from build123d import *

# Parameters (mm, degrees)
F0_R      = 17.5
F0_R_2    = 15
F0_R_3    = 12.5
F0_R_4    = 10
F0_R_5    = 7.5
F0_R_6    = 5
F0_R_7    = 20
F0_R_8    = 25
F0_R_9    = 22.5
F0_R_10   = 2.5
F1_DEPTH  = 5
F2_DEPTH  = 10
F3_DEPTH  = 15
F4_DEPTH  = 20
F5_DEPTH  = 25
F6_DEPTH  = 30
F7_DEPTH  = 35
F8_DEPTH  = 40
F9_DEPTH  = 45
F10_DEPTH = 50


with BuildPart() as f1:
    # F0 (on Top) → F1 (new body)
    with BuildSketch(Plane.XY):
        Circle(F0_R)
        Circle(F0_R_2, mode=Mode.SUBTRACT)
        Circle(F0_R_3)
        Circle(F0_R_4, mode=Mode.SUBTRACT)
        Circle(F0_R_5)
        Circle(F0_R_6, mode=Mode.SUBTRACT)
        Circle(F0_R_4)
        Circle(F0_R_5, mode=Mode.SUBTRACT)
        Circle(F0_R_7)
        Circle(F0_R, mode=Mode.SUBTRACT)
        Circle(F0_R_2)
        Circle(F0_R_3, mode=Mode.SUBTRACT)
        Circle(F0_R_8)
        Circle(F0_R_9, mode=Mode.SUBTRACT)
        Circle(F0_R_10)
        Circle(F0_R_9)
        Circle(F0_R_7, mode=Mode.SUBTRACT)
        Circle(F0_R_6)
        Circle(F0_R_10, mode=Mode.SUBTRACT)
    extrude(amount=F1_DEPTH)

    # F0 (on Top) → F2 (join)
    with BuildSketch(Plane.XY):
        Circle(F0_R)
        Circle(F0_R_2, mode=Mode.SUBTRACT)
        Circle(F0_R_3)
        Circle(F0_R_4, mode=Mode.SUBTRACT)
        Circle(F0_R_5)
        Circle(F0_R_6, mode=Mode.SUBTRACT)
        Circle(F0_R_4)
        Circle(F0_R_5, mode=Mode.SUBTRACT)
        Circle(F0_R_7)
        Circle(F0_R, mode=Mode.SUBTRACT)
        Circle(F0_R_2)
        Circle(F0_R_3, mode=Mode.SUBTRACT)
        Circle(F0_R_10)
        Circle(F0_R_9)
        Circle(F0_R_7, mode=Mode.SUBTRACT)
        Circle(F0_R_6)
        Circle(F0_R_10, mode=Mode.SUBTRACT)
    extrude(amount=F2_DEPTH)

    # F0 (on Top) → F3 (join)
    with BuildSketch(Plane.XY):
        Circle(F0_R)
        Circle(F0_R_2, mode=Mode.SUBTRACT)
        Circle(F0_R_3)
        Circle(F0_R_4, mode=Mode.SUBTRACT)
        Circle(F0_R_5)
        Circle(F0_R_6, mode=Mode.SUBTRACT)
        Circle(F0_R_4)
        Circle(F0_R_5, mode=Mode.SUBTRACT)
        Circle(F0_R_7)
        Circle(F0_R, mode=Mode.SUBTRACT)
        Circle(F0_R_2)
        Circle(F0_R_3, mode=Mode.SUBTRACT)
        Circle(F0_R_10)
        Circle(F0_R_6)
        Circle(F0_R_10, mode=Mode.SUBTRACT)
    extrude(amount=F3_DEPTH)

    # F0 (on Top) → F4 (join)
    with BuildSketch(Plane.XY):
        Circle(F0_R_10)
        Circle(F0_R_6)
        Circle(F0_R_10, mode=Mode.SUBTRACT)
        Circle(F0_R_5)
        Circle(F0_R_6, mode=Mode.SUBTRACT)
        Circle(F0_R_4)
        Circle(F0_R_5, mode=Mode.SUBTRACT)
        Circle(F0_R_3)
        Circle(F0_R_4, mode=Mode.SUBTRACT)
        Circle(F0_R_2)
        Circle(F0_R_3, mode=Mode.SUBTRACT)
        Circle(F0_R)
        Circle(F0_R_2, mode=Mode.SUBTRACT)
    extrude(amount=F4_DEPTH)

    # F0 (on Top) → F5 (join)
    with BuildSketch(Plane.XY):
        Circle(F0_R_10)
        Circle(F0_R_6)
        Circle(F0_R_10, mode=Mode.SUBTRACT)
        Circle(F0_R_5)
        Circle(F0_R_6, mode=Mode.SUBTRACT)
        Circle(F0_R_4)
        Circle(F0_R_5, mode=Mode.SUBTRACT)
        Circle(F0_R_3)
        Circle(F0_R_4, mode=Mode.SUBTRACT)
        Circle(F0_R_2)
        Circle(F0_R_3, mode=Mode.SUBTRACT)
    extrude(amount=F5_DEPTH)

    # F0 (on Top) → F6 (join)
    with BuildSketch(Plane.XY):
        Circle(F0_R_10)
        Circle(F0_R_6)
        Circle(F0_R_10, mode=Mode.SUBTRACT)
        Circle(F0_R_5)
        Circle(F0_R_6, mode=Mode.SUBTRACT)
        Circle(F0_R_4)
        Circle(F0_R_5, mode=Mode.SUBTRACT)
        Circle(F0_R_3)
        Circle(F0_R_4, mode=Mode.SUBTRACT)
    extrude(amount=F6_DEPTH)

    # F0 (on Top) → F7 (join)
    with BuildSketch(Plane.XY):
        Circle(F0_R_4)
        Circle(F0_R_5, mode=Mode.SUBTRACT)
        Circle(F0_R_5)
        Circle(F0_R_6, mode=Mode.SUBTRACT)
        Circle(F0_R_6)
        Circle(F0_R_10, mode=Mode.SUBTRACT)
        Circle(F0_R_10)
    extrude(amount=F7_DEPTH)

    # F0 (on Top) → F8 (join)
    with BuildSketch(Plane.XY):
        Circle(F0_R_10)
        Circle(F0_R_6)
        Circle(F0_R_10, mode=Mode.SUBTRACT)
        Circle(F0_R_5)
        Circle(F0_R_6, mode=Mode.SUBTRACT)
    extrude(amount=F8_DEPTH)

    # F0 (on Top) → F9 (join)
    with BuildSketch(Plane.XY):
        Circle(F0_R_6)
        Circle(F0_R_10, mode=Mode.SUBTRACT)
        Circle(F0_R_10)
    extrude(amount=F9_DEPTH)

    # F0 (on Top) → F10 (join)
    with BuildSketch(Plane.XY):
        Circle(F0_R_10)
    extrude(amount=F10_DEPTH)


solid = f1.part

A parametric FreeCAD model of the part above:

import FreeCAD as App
import Part
import Sketcher
from FreeCAD import Vector

doc = App.newDocument("Part")
body = doc.addObject("PartDesign::Body", "Body")
body.AllowCompound = True

sketch1 = doc.addObject("Sketcher::SketchObject", "Sketch")
body.addObject(sketch1)
sketch1.AttachmentSupport = (doc.XY_Plane, [""])
sketch1.MapMode = "FlatFace"
sketch1.addGeometry([
    Part.Circle(Vector(0, 0, 0), Vector(0, 0, 1), 25),
    Part.Circle(Vector(0, 0, 0), Vector(0, 0, 1), 20),
    Part.Circle(Vector(0, 0, 0), Vector(0, 0, 1), 5),
    Part.Circle(Vector(0, 0, 0), Vector(0, 0, 1), 2.5),
], False)
sketch1.addConstraint([
    Sketcher.Constraint("Coincident", 0, 3, -1, 1),
    Sketcher.Constraint("Coincident", 1, 3, -1, 1),
    Sketcher.Constraint("Coincident", 2, 3, -1, 1),
    Sketcher.Constraint("Coincident", 3, 3, -1, 1),
    Sketcher.Constraint("Diameter", 0, 50.0),
    Sketcher.Constraint("Diameter", 1, 40.0),
    Sketcher.Constraint("Diameter", 2, 10.0),
    Sketcher.Constraint("Diameter", 3, 5.0),
])
pad1 = doc.addObject("PartDesign::Pad", "Pad")
body.addObject(pad1)
pad1.Profile = sketch1
pad1.Length = 5

sketch2 = doc.addObject("Sketcher::SketchObject", "Sketch001")
body.addObject(sketch2)
sketch2.AttachmentSupport = (doc.XY_Plane, [""])
sketch2.MapMode = "FlatFace"
sketch2.addGeometry([
    Part.Circle(Vector(0, 0, 0), Vector(0, 0, 1), 22.5),
    Part.Circle(Vector(0, 0, 0), Vector(0, 0, 1), 20),
    Part.Circle(Vector(0, 0, 0), Vector(0, 0, 1), 5),
    Part.Circle(Vector(0, 0, 0), Vector(0, 0, 1), 2.5),
], False)
sketch2.addConstraint([
    Sketcher.Constraint("Coincident", 0, 3, -1, 1),
    Sketcher.Constraint("Coincident", 1, 3, -1, 1),
    Sketcher.Constraint("Coincident", 2, 3, -1, 1),
    Sketcher.Constraint("Coincident", 3, 3, -1, 1),
    Sketcher.Constraint("Diameter", 0, 45.0),
    Sketcher.Constraint("Diameter", 1, 40.0),
    Sketcher.Constraint("Diameter", 2, 10.0),
    Sketcher.Constraint("Diameter", 3, 5.0),
])
pad2 = doc.addObject("PartDesign::Pad", "Pad001")
body.addObject(pad2)
pad2.Profile = sketch2
pad2.Length = 10

sketch3 = doc.addObject("Sketcher::SketchObject", "Sketch002")
body.addObject(sketch3)
sketch3.AttachmentSupport = (doc.XY_Plane, [""])
sketch3.MapMode = "FlatFace"
sketch3.addGeometry([
    Part.Circle(Vector(0, 0, 0), Vector(0, 0, 1), 20),
    Part.Circle(Vector(0, 0, 0), Vector(0, 0, 1), 17.5),
    Part.Circle(Vector(0, 0, 0), Vector(0, 0, 1), 15),
    Part.Circle(Vector(0, 0, 0), Vector(0, 0, 1), 12.5),
    Part.Circle(Vector(0, 0, 0), Vector(0, 0, 1), 5),
    Part.Circle(Vector(0, 0, 0), Vector(0, 0, 1), 2.5),
], False)
sketch3.addConstraint([
    Sketcher.Constraint("Coincident", 0, 3, -1, 1),
    Sketcher.Constraint("Coincident", 1, 3, -1, 1),
    Sketcher.Constraint("Coincident", 2, 3, -1, 1),
    Sketcher.Constraint("Coincident", 3, 3, -1, 1),
    Sketcher.Constraint("Coincident", 4, 3, -1, 1),
    Sketcher.Constraint("Coincident", 5, 3, -1, 1),
    Sketcher.Constraint("Diameter", 0, 40.0),
    Sketcher.Constraint("Diameter", 1, 35.0),
    Sketcher.Constraint("Diameter", 2, 30.0),
    Sketcher.Constraint("Diameter", 3, 25.0),
    Sketcher.Constraint("Diameter", 4, 10.0),
    Sketcher.Constraint("Diameter", 5, 5.0),
])
pad3 = doc.addObject("PartDesign::Pad", "Pad002")
body.addObject(pad3)
pad3.Profile = sketch3
pad3.Length = 15

sketch4 = doc.addObject("Sketcher::SketchObject", "Sketch003")
body.addObject(sketch4)
sketch4.AttachmentSupport = (doc.XY_Plane, [""])
sketch4.MapMode = "FlatFace"
sketch4.addGeometry([
    Part.Circle(Vector(0, 0, 0), Vector(0, 0, 1), 18),
    Part.Circle(Vector(0, 0, 0), Vector(0, 0, 1), 15),
], False)
sketch4.addConstraint([
    Sketcher.Constraint("Coincident", 0, 3, -1, 1),
    Sketcher.Constraint("Coincident", 1, 3, -1, 1),
    Sketcher.Constraint("Diameter", 0, 35.0),
    Sketcher.Constraint("Diameter", 1, 30.0),
])
pad4 = doc.addObject("PartDesign::Pad", "Pad003")
body.addObject(pad4)
pad4.Profile = sketch4
pad4.Length = 20

sketch5 = doc.addObject("Sketcher::SketchObject", "Sketch004")
body.addObject(sketch5)
sketch5.AttachmentSupport = (doc.XY_Plane, [""])
sketch5.MapMode = "FlatFace"
sketch5.addGeometry([
    Part.Circle(Vector(0, 0, 0), Vector(0, 0, 1), 15),
    Part.Circle(Vector(0, 0, 0), Vector(0, 0, 1), 12),
], False)
sketch5.addConstraint([
    Sketcher.Constraint("Coincident", 0, 3, -1, 1),
    Sketcher.Constraint("Coincident", 1, 3, -1, 1),
    Sketcher.Constraint("Diameter", 0, 30.0),
    Sketcher.Constraint("Diameter", 1, 25.0),
])
pad5 = doc.addObject("PartDesign::Pad", "Pad004")
body.addObject(pad5)
pad5.Profile = sketch5
pad5.Length = 25

sketch6 = doc.addObject("Sketcher::SketchObject", "Sketch005")
body.addObject(sketch6)
sketch6.AttachmentSupport = (doc.XY_Plane, [""])
sketch6.MapMode = "FlatFace"
sketch6.addGeometry([
    Part.Circle(Vector(0, 0, 0), Vector(0, 0, 1), 12),
    Part.Circle(Vector(0, 0, 0), Vector(0, 0, 1), 10),
], False)
sketch6.addConstraint([
    Sketcher.Constraint("Coincident", 0, 3, -1, 1),
    Sketcher.Constraint("Coincident", 1, 3, -1, 1),
    Sketcher.Constraint("Diameter", 0, 25.0),
    Sketcher.Constraint("Diameter", 1, 20.0),
])
pad6 = doc.addObject("PartDesign::Pad", "Pad005")
body.addObject(pad6)
pad6.Profile = sketch6
pad6.Length = 30

sketch7 = doc.addObject("Sketcher::SketchObject", "Sketch006")
body.addObject(sketch7)
sketch7.AttachmentSupport = (doc.XY_Plane, [""])
sketch7.MapMode = "FlatFace"
sketch7.addGeometry(Part.Circle(Vector(0, 0, 0), Vector(0, 0, 1), 10), False)
sketch7.addConstraint([
    Sketcher.Constraint("Coincident", 0, 3, -1, 1),
    Sketcher.Constraint("Diameter", 0, 20.0),
])
pad7 = doc.addObject("PartDesign::Pad", "Pad006")
body.addObject(pad7)
pad7.Profile = sketch7
pad7.Length = 35

sketch8 = doc.addObject("Sketcher::SketchObject", "Sketch007")
body.addObject(sketch8)
sketch8.AttachmentSupport = (doc.XY_Plane, [""])
sketch8.MapMode = "FlatFace"
sketch8.addGeometry([
    Part.Circle(Vector(0, 0, 0), Vector(0, 0, 1), 8),
    Part.Circle(Vector(0, 0, 0), Vector(0, 0, 1), 5),
], False)
sketch8.addConstraint([
    Sketcher.Constraint("Coincident", 0, 3, -1, 1),
    Sketcher.Constraint("Coincident", 1, 3, -1, 1),
    Sketcher.Constraint("Diameter", 0, 15.0),
    Sketcher.Constraint("Diameter", 1, 10.0),
])
pad8 = doc.addObject("PartDesign::Pad", "Pad007")
body.addObject(pad8)
pad8.Profile = sketch8
pad8.Length = 40

sketch9 = doc.addObject("Sketcher::SketchObject", "Sketch008")
body.addObject(sketch9)
sketch9.AttachmentSupport = (doc.XY_Plane, [""])
sketch9.MapMode = "FlatFace"
sketch9.addGeometry(Part.Circle(Vector(0, 0, 0), Vector(0, 0, 1), 5), False)
sketch9.addConstraint([
    Sketcher.Constraint("Coincident", 0, 3, -1, 1),
    Sketcher.Constraint("Diameter", 0, 10.0),
])
pad9 = doc.addObject("PartDesign::Pad", "Pad008")
body.addObject(pad9)
pad9.Profile = sketch9
pad9.Length = 45

sketch10 = doc.addObject("Sketcher::SketchObject", "Sketch009")
body.addObject(sketch10)
sketch10.AttachmentSupport = (doc.XY_Plane, [""])
sketch10.MapMode = "FlatFace"
sketch10.addGeometry(Part.Circle(Vector(0, 0, 0), Vector(0, 0, 1), 2.5), False)
sketch10.addConstraint([
    Sketcher.Constraint("Coincident", 0, 3, -1, 1),
    Sketcher.Constraint("Diameter", 0, 5.0),
])
pad10 = doc.addObject("PartDesign::Pad", "Pad009")
body.addObject(pad10)
pad10.Profile = sketch10
pad10.Length = 50

doc.recompute()
